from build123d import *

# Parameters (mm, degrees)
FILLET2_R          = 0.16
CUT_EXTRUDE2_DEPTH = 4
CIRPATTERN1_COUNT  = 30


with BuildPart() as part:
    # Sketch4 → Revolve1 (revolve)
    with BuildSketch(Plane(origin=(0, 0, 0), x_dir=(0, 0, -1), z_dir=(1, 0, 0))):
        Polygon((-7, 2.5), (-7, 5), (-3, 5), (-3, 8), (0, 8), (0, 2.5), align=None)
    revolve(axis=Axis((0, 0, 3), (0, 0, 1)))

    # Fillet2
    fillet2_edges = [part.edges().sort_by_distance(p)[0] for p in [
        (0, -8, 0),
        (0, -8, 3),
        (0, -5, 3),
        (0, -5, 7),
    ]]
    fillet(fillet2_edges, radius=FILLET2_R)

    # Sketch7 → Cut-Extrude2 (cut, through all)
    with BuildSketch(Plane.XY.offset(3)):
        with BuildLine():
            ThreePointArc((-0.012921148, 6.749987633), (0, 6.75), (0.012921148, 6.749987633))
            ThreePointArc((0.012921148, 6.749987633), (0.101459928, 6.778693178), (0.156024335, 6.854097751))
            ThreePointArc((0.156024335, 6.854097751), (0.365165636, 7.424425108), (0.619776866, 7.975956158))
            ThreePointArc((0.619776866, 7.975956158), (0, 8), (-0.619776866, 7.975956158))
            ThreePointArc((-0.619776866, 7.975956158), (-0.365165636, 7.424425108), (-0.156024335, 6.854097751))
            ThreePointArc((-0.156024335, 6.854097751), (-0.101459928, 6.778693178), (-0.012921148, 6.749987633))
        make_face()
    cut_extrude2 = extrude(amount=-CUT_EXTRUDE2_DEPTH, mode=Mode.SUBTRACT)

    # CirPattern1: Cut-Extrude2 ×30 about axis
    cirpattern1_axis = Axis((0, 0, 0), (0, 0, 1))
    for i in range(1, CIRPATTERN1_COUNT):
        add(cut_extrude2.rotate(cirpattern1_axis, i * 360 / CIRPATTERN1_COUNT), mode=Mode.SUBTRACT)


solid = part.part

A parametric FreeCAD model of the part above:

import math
import FreeCAD as App
import Part
import Sketcher
from FreeCAD import Vector


def edges_at(feature, points):
    """Names of the edges that pass closest to the given points."""
    edges = feature.Shape.Edges
    near = lambda p: min(range(len(edges)), key=lambda i: edges[i].distToShape(Part.Vertex(*p))[0])
    return sorted({f"Edge{near(p) + 1}" for p in points})


def add_polygon(sketch, points):
    """Adds a closed chain of lines whose ends are joined by coincident constraints."""
    first, n = sketch.GeometryCount, len(points)
    for a, b in zip(points, points[1:] + points[:1]):
        sketch.addGeometry(Part.LineSegment(App.Vector(*a, 0), App.Vector(*b, 0)), False)
    for i in range(n):
        sketch.addConstraint(Sketcher.Constraint("Coincident", first + i, 2, first + (i + 1) % n, 1))

doc = App.newDocument("Part")
body = doc.addObject("PartDesign::Body", "Body")

# Sketch on YZ plane
sketch1 = doc.addObject("Sketcher::SketchObject", "Sketch")
body.addObject(sketch1)
sketch1.AttachmentSupport = (doc.YZ_Plane, [""])
sketch1.MapMode = "FlatFace"
add_polygon(sketch1, [(5, 7), (2.5, 7), (2.5, 0), (8, 0), (8, 3), (5, 3)])  # lines 0-5
sketch1.addConstraint(Sketcher.Constraint("Horizontal", 0))
sketch1.addConstraint(Sketcher.Constraint("Vertical", 1))
sketch1.addConstraint(Sketcher.Constraint("Horizontal", 2))
sketch1.addConstraint(Sketcher.Constraint("Vertical", 3))
sketch1.addConstraint(Sketcher.Constraint("Horizontal", 4))
sketch1.addConstraint(Sketcher.Constraint("Vertical", 5))
sketch1.addConstraint(Sketcher.Constraint("PointOnObject", 1, 2, -1))
sketch1.addConstraint(Sketcher.Constraint("Equal", 4, 3))
sketch1.addConstraint(Sketcher.Constraint("DistanceX", 4, 2, 4, 1, 3.0))
sketch1.addConstraint(Sketcher.Constraint("DistanceY", 1, 2, 1, 1, 7.0))
sketch1.addConstraint(Sketcher.Constraint("DistanceX", 0, 2, 0, 1, 2.5))
sketch1.addConstraint(Sketcher.Constraint("DistanceX", -1, 1, 2, 2, 8.0))
revolution = doc.addObject("PartDesign::Revolution", "Revolution")
body.addObject(revolution)
revolution.Profile = sketch1
revolution.ReferenceAxis = (sketch1, ["V_Axis"])
revolution.Angle = 360
doc.recompute()

fillet = doc.addObject("PartDesign::Fillet", "Fillet")
body.addObject(fillet)
fillet.Base = (revolution, edges_at(revolution, [
    (0, -8, 0),
    (0, -8, 3),
    (0, -5, 3),
    (0, -5, 7),
]))
fillet.Radius = 0.16

# Sketch on XY plane
sketch2 = doc.addObject("Sketcher::SketchObject", "Sketch001")
body.addObject(sketch2)
sketch2.AttachmentSupport = (doc.XY_Plane, [""])
sketch2.MapMode = "FlatFace"
sketch2.AttachmentOffset = App.Placement(Vector(0, 0, 3), App.Rotation())
sketch2.addGeometry(Part.ArcOfCircle(Part.Circle(Vector(0, -0.000069, 0), Vector(0, 0, 1), 6.750069), math.radians(89.890323), math.radians(90.109677)), False)
sketch2.addGeometry(Part.ArcOfCircle(Part.Circle(Vector(0.013208, 6.899998, 0), Vector(0, 0, 1), 0.150011), math.radians(-90.109678), math.radians(-17.817208)), False)
sketch2.addGeometry(Part.ArcOfCircle(Part.Circle(Vector(7.296306, 4.559238, 0), Vector(0, 0, 1), 7.5), math.radians(152.898876), math.radians(162.182792)), False)
sketch2.addGeometry(Part.ArcOfCircle(Part.Circle(Vector(0, 0, 0), Vector(0, 0, 1), 8), math.radians(85.556723), math.radians(94.443277)), False)
sketch2.addGeometry(Part.ArcOfCircle(Part.Circle(Vector(-7.296306, 4.559238, 0), Vector(0, 0, 1), 7.5), math.radians(17.817208), math.radians(27.101124)), False)
sketch2.addGeometry(Part.ArcOfCircle(Part.Circle(Vector(-0.013208, 6.899998, 0), Vector(0, 0, 1), 0.150011), math.radians(-162.182792), math.radians(-89.890322)), False)
sketch2.addConstraint(Sketcher.Constraint("Coincident", 0, 1, 1, 1))
sketch2.addConstraint(Sketcher.Constraint("Coincident", 1, 2, 2, 2))
sketch2.addConstraint(Sketcher.Constraint("Coincident", 2, 1, 3, 1))
sketch2.addConstraint(Sketcher.Constraint("Coincident", 3, 2, 4, 2))
sketch2.addConstraint(Sketcher.Constraint("Coincident", 4, 1, 5, 1))
sketch2.addConstraint(Sketcher.Constraint("Coincident", 5, 2, 0, 2))
sketch2.addConstraint(Sketcher.Constraint("Coincident", 3, 3, -1, 1))
sketch2.addConstraint(Sketcher.Constraint("PointOnObject", 0, 3, -2))
sketch2.addConstraint(Sketcher.Constraint("Radius", 3, 8.0))
sketch2.addConstraint(Sketcher.Constraint("Radius", 2, 7.5))
sketch2.addConstraint(Sketcher.Constraint("Radius", 4, 7.5))
sketch2.addConstraint(Sketcher.Constraint("DistanceY", -1, 1, 1, 3, 6.899998))
sketch2.addConstraint(Sketcher.Constraint("DistanceY", -1, 1, 5, 3, 6.899998))
sketch2.addConstraint(Sketcher.Constraint("Radius", 0, 6.750069))
sketch2.addConstraint(Sketcher.Constraint("Radius", 1, 0.150011))
sketch2.addConstraint(Sketcher.Constraint("DistanceY", 1, 2, 1, 3, 0.045901))
sketch2.addConstraint(Sketcher.Constraint("DistanceX", 3, 2, 1, 2, 0.775801))
sketch2.addConstraint(Sketcher.Constraint("DistanceX", 3, 2, 0, 1, 0.632698))
sketch2.addConstraint(Sketcher.Constraint("DistanceY", 4, 1, 5, 3, 0.045901))
sketch2.addConstraint(Sketcher.Constraint("DistanceX", -1, 1, 1, 3, 0.013208))
sketch2.addConstraint(Sketcher.Constraint("DistanceY", -1, 1, 2, 3, 4.559238))
sketch2.addConstraint(Sketcher.Constraint("DistanceY", -1, 1, 4, 3, 4.559238))
sketch2.addConstraint(Sketcher.Constraint("DistanceX", 5, 2, -1, 1, 0.012921))
pocket1 = doc.addObject("PartDesign::Pocket", "Pocket")
body.addObject(pocket1)
pocket1.Profile = sketch2
pocket1.Type = "ThroughAll"
doc.recompute()

polarpattern = doc.addObject("PartDesign::PolarPattern", "PolarPattern")
body.addObject(polarpattern)
polarpattern.Originals = [pocket1]
polarpattern.Axis = (doc.Z_Axis, [""])
polarpattern.Angle = 360
polarpattern.Occurrences = 30
body.Tip = polarpattern

doc.recompute()
